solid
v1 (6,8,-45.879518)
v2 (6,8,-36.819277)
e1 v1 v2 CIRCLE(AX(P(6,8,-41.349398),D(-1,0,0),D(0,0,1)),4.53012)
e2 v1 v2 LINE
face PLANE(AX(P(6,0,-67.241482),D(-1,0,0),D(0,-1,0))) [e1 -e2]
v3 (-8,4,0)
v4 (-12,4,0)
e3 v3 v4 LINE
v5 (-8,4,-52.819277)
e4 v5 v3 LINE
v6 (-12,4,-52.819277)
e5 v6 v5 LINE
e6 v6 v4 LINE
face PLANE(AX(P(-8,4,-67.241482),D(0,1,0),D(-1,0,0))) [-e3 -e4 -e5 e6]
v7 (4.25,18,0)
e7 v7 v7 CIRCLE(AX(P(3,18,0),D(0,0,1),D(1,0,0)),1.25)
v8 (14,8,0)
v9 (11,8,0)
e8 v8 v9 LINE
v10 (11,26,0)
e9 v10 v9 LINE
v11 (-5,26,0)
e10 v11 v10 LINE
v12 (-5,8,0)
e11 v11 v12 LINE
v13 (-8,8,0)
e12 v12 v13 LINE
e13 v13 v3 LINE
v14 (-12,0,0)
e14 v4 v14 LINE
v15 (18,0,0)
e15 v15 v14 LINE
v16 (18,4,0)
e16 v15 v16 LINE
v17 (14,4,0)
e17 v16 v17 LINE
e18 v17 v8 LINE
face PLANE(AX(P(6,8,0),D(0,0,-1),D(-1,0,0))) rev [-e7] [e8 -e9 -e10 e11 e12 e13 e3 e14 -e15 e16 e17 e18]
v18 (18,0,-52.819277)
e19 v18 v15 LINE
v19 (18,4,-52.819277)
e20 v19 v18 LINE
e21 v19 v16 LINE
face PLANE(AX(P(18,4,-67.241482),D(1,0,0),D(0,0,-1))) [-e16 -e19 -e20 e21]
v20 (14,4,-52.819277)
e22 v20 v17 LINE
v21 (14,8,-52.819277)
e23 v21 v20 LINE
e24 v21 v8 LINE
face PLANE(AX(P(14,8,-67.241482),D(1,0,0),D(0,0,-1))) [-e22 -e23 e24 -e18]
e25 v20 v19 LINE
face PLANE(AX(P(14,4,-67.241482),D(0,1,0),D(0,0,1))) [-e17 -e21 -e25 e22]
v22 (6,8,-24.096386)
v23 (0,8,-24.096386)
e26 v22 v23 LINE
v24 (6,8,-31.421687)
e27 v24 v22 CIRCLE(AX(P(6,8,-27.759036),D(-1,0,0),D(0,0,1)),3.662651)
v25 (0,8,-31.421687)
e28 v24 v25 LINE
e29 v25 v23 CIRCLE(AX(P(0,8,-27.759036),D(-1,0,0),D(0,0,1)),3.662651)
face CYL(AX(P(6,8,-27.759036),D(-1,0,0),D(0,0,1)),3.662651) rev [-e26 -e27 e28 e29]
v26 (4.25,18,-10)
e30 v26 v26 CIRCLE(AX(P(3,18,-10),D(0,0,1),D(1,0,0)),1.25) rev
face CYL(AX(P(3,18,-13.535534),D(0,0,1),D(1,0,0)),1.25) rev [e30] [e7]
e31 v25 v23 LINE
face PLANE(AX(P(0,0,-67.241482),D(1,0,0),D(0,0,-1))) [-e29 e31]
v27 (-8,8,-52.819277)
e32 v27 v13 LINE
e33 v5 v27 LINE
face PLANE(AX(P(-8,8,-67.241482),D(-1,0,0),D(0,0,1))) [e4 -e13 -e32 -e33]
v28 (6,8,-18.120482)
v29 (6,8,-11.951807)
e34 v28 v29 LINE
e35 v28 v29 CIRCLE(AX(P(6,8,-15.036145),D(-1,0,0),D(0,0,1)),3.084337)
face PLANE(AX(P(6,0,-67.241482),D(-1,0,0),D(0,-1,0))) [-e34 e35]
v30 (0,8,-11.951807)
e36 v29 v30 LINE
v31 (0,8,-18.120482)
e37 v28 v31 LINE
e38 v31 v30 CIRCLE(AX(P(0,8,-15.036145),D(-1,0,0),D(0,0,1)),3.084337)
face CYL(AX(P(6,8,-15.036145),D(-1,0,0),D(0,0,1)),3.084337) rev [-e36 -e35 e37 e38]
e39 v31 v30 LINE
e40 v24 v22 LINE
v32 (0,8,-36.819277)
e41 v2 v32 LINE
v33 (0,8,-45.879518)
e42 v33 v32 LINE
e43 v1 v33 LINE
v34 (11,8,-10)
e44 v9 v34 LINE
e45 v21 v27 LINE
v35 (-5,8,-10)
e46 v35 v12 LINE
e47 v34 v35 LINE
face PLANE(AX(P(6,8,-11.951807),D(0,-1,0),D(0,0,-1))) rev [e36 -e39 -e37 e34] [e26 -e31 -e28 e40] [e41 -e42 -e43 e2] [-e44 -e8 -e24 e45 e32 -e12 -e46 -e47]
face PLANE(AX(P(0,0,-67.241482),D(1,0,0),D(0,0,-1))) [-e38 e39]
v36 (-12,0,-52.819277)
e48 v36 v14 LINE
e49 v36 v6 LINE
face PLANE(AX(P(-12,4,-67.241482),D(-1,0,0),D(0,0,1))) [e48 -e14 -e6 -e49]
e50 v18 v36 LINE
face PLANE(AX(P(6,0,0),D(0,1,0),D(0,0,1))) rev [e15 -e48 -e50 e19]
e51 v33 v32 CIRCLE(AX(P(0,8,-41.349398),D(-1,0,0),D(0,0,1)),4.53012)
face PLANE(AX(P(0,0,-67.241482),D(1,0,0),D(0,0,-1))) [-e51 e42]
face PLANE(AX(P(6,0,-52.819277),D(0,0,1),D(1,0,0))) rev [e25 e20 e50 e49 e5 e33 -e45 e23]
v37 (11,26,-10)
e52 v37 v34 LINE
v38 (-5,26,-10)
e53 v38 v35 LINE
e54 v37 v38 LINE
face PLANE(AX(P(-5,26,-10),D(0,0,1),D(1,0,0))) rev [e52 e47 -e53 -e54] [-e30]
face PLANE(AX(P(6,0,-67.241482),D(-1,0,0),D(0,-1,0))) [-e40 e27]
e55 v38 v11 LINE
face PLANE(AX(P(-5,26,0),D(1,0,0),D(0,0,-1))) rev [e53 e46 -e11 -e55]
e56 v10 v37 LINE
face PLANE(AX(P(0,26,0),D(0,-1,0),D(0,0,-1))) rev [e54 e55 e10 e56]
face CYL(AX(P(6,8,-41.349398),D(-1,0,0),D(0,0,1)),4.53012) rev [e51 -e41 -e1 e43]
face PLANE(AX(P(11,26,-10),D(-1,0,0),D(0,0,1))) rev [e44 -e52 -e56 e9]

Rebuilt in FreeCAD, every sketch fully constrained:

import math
import FreeCAD as App
import Part
import Sketcher
Q = App.Units.Quantity


def add_polygon(sketch, points):
    """Adds a closed chain of lines whose ends are joined by coincident constraints."""
    first, n = sketch.GeometryCount, len(points)
    for a, b in zip(points, points[1:] + points[:1]):
        sketch.addGeometry(Part.LineSegment(App.Vector(*a, 0), App.Vector(*b, 0)), False)
    for i in range(n):
        sketch.addConstraint(Sketcher.Constraint("Coincident", first + i, 2, first + (i + 1) % n, 1))

doc = App.newDocument("Part")
body = doc.addObject("PartDesign::Body", "Body")

sketch1 = doc.addObject("Sketcher::SketchObject", "Sketch")
body.addObject(sketch1)
sketch1.AttachmentSupport = (doc.YZ_Plane, [""])
sketch1.MapMode = "FlatFace"
sketch1.addGeometry(Part.LineSegment(App.Vector(0, 0, 0), App.Vector(0, -52.819277, 0)), False)
sketch1.addGeometry(Part.LineSegment(App.Vector(0, -52.819277, 0), App.Vector(8, -52.819277, 0)), False)
sketch1.addGeometry(Part.LineSegment(App.Vector(8, -52.819277, 0), App.Vector(8, -45.879518, 0)), False)
sketch1.addGeometry(Part.ArcOfCircle(Part.Circle(App.Vector(8, -41.349398, 0), App.Vector(0, 0, 1), 4.53012), math.radians(90), math.radians(270)), False)
sketch1.addGeometry(Part.LineSegment(App.Vector(8, -36.819277, 0), App.Vector(8, -31.421687, 0)), False)
sketch1.addGeometry(Part.ArcOfCircle(Part.Circle(App.Vector(8, -27.759036, 0), App.Vector(0, 0, 1), 3.662651), math.radians(90), math.radians(270)), False)
sketch1.addGeometry(Part.LineSegment(App.Vector(8, -24.096386, 0), App.Vector(8, -18.120482, 0)), False)
sketch1.addGeometry(Part.ArcOfCircle(Part.Circle(App.Vector(8, -15.036145, 0), App.Vector(0, 0, 1), 3.084337), math.radians(90), math.radians(270)), False)
sketch1.addGeometry(Part.LineSegment(App.Vector(8, -11.951807, 0), App.Vector(8, 0, 0)), False)
sketch1.addGeometry(Part.LineSegment(App.Vector(8, 0, 0), App.Vector(0, 0, 0)), False)
sketch1.addConstraint(Sketcher.Constraint("Coincident", 0, 2, 1, 1))
sketch1.addConstraint(Sketcher.Constraint("Coincident", 1, 2, 2, 1))
sketch1.addConstraint(Sketcher.Constraint("Coincident", 2, 2, 3, 2))
sketch1.addConstraint(Sketcher.Constraint("Coincident", 3, 1, 4, 1))
sketch1.addConstraint(Sketcher.Constraint("Coincident", 4, 2, 5, 2))
sketch1.addConstraint(Sketcher.Constraint("Coincident", 5, 1, 6, 1))
sketch1.addConstraint(Sketcher.Constraint("Coincident", 6, 2, 7, 2))
sketch1.addConstraint(Sketcher.Constraint("Coincident", 7, 1, 8, 1))
sketch1.addConstraint(Sketcher.Constraint("Coincident", 8, 2, 9, 1))
sketch1.addConstraint(Sketcher.Constraint("Coincident", 9, 2, 0, 1))
sketch1.addConstraint(Sketcher.Constraint("Vertical", 0))
sketch1.addConstraint(Sketcher.Constraint("Horizontal", 1))
sketch1.addConstraint(Sketcher.Constraint("Vertical", 2))
sketch1.addConstraint(Sketcher.Constraint("Vertical", 4))
sketch1.addConstraint(Sketcher.Constraint("Vertical", 6))
sketch1.addConstraint(Sketcher.Constraint("Vertical", 8))
sketch1.addConstraint(Sketcher.Constraint("Horizontal", 9))
sketch1.addConstraint(Sketcher.Constraint("Coincident", 9, 2, -1, 1))
sketch1.addConstraint(Sketcher.Constraint("Vertical", 3, 3, 5, 3))
sketch1.addConstraint(Sketcher.Constraint("Vertical", 5, 3, 7, 3))
sketch1.addConstraint(Sketcher.Constraint("Vertical", 7, 3, 1, 2))
sketch1.addConstraint(Sketcher.Constraint("Vertical", 2, 2, 3, 1))
sketch1.addConstraint(Sketcher.Constraint("Vertical", 4, 2, 5, 1))
sketch1.addConstraint(Sketcher.Constraint("Vertical", 6, 2, 7, 1))
sketch1.addConstraint(Sketcher.Constraint("DistanceX", 1, 1, 1, 2, Q("8 mm")))
sketch1.addConstraint(Sketcher.Constraint("DistanceY", 1, 2, 3, 1, Q("16 mm")))
sketch1.addConstraint(Sketcher.Constraint("Radius", 3, Q("4.53012 mm")))
sketch1.addConstraint(Sketcher.Constraint("Radius", 5, Q("3.662651 mm")))
sketch1.addConstraint(Sketcher.Constraint("Radius", 7, Q("3.084337 mm")))
sketch1.addConstraint(Sketcher.Constraint("DistanceY", 4, 1, 4, 2, Q("5.39759 mm")))
sketch1.addConstraint(Sketcher.Constraint("DistanceY", 0, 2, 0, 1, Q("52.819277 mm")))
sketch1.addConstraint(Sketcher.Constraint("DistanceY", 6, 1, 6, 2, Q("5.975904 mm")))
pad1 = doc.addObject("PartDesign::Pad", "Pad")
body.addObject(pad1)
pad1.Profile = sketch1
pad1.Length = 6

sketch2 = doc.addObject("Sketcher::SketchObject", "Sketch001")
body.addObject(sketch2)
sketch2.AttachmentSupport = (doc.XY_Plane, [""])
sketch2.MapMode = "FlatFace"
add_polygon(sketch2, [(14, 8), (6, 8), (6, 0), (18, 0), (18, 4), (14, 4)])
sketch2.addConstraint(Sketcher.Constraint("Horizontal", 0))
sketch2.addConstraint(Sketcher.Constraint("Vertical", 1))
sketch2.addConstraint(Sketcher.Constraint("Horizontal", 2))
sketch2.addConstraint(Sketcher.Constraint("Vertical", 3))
sketch2.addConstraint(Sketcher.Constraint("Horizontal", 4))
sketch2.addConstraint(Sketcher.Constraint("Vertical", 5))
sketch2.addConstraint(Sketcher.Constraint("PointOnObject", 1, 2, -1))
sketch2.addConstraint(Sketcher.Constraint("Equal", 0, 1))
sketch2.addConstraint(Sketcher.Constraint("Equal", 4, 3))
sketch2.addConstraint(Sketcher.Constraint("Equal", 3, 5))
sketch2.addConstraint(Sketcher.Constraint("DistanceX", 0, 2, 0, 1, Q("8 mm")))
sketch2.addConstraint(Sketcher.Constraint("DistanceX", -1, 1, 0, 2, Q("6 mm")))
pad2 = doc.addObject("PartDesign::Pad", "Pad001")
body.addObject(pad2)
pad2.Profile = sketch2
pad2.Length = 52.819277
pad2.Reversed = True

sketch3 = doc.addObject("Sketcher::SketchObject", "Sketch002")
body.addObject(sketch3)
sketch3.AttachmentSupport = (doc.XY_Plane, [""])
sketch3.MapMode = "FlatFace"
add_polygon(sketch3, [(0, 8), (-8, 8), (-8, 4), (-12, 4), (-12, 0), (0, 0)])
sketch3.addConstraint(Sketcher.Constraint("Horizontal", 0))
sketch3.addConstraint(Sketcher.Constraint("Vertical", 1))
sketch3.addConstraint(Sketcher.Constraint("Horizontal", 2))
sketch3.addConstraint(Sketcher.Constraint("Vertical", 3))
sketch3.addConstraint(Sketcher.Constraint("Horizontal", 4))
sketch3.addConstraint(Sketcher.Constraint("Vertical", 5))
sketch3.addConstraint(Sketcher.Constraint("Coincident", 4, 2, -1, 1))
sketch3.addConstraint(Sketcher.Constraint("Equal", 2, 1))
sketch3.addConstraint(Sketcher.Constraint("Equal", 1, 3))
sketch3.addConstraint(Sketcher.Constraint("Equal", 0, 5))
sketch3.addConstraint(Sketcher.Constraint("DistanceX", 0, 2, 0, 1, Q("8 mm")))
pad3 = doc.addObject("PartDesign::Pad", "Pad002")
body.addObject(pad3)
pad3.Profile = sketch3
pad3.Length = 52.819277
pad3.Reversed = True

sketch4 = doc.addObject("Sketcher::SketchObject", "Sketch003")
body.addObject(sketch4)
sketch4.AttachmentSupport = (doc.XZ_Plane, [""])
sketch4.MapMode = "FlatFace"
sketch4.AttachmentOffset = App.Placement(App.Vector(0, 0, -8), App.Rotation())
add_polygon(sketch4, [(-5, -10), (-5, 0), (11, 0), (11, -10)])
sketch4.addConstraint(Sketcher.Constraint("Vertical", 0))
sketch4.addConstraint(Sketcher.Constraint("Horizontal", 1))
sketch4.addConstraint(Sketcher.Constraint("Vertical", 2))
sketch4.addConstraint(Sketcher.Constraint("Horizontal", 3))
sketch4.addConstraint(Sketcher.Constraint("PointOnObject", 0, 2, -1))
sketch4.addConstraint(Sketcher.Constraint("DistanceX", 1, 1, 1, 2, Q("16 mm")))
sketch4.addConstraint(Sketcher.Constraint("DistanceY", 0, 1, 0, 2, Q("10 mm")))
sketch4.addConstraint(Sketcher.Constraint("DistanceX", 0, 2, -1, 1, Q("5 mm")))
pad4 = doc.addObject("PartDesign::Pad", "Pad003")
body.addObject(pad4)
pad4.Profile = sketch4
pad4.Length = 18
pad4.Reversed = True

sketch5 = doc.addObject("Sketcher::SketchObject", "Sketch004")
body.addObject(sketch5)
sketch5.AttachmentSupport = (doc.XY_Plane, [""])
sketch5.MapMode = "FlatFace"
sketch5.addGeometry(Part.Circle(App.Vector(3, 18, 0), App.Vector(0, 0, 1), 1.25), False)
sketch5.addConstraint(Sketcher.Constraint("Diameter", 0, Q("2.5 mm")))
sketch5.addConstraint(Sketcher.Constraint("DistanceX", -1, 1, 0, 3, Q("3 mm")))
sketch5.addConstraint(Sketcher.Constraint("DistanceY", -1, 1, 0, 3, Q("18 mm")))
pocket1 = doc.addObject("PartDesign::Pocket", "Pocket")
body.addObject(pocket1)
pocket1.Profile = sketch5
pocket1.Length = 10

doc.recompute()
